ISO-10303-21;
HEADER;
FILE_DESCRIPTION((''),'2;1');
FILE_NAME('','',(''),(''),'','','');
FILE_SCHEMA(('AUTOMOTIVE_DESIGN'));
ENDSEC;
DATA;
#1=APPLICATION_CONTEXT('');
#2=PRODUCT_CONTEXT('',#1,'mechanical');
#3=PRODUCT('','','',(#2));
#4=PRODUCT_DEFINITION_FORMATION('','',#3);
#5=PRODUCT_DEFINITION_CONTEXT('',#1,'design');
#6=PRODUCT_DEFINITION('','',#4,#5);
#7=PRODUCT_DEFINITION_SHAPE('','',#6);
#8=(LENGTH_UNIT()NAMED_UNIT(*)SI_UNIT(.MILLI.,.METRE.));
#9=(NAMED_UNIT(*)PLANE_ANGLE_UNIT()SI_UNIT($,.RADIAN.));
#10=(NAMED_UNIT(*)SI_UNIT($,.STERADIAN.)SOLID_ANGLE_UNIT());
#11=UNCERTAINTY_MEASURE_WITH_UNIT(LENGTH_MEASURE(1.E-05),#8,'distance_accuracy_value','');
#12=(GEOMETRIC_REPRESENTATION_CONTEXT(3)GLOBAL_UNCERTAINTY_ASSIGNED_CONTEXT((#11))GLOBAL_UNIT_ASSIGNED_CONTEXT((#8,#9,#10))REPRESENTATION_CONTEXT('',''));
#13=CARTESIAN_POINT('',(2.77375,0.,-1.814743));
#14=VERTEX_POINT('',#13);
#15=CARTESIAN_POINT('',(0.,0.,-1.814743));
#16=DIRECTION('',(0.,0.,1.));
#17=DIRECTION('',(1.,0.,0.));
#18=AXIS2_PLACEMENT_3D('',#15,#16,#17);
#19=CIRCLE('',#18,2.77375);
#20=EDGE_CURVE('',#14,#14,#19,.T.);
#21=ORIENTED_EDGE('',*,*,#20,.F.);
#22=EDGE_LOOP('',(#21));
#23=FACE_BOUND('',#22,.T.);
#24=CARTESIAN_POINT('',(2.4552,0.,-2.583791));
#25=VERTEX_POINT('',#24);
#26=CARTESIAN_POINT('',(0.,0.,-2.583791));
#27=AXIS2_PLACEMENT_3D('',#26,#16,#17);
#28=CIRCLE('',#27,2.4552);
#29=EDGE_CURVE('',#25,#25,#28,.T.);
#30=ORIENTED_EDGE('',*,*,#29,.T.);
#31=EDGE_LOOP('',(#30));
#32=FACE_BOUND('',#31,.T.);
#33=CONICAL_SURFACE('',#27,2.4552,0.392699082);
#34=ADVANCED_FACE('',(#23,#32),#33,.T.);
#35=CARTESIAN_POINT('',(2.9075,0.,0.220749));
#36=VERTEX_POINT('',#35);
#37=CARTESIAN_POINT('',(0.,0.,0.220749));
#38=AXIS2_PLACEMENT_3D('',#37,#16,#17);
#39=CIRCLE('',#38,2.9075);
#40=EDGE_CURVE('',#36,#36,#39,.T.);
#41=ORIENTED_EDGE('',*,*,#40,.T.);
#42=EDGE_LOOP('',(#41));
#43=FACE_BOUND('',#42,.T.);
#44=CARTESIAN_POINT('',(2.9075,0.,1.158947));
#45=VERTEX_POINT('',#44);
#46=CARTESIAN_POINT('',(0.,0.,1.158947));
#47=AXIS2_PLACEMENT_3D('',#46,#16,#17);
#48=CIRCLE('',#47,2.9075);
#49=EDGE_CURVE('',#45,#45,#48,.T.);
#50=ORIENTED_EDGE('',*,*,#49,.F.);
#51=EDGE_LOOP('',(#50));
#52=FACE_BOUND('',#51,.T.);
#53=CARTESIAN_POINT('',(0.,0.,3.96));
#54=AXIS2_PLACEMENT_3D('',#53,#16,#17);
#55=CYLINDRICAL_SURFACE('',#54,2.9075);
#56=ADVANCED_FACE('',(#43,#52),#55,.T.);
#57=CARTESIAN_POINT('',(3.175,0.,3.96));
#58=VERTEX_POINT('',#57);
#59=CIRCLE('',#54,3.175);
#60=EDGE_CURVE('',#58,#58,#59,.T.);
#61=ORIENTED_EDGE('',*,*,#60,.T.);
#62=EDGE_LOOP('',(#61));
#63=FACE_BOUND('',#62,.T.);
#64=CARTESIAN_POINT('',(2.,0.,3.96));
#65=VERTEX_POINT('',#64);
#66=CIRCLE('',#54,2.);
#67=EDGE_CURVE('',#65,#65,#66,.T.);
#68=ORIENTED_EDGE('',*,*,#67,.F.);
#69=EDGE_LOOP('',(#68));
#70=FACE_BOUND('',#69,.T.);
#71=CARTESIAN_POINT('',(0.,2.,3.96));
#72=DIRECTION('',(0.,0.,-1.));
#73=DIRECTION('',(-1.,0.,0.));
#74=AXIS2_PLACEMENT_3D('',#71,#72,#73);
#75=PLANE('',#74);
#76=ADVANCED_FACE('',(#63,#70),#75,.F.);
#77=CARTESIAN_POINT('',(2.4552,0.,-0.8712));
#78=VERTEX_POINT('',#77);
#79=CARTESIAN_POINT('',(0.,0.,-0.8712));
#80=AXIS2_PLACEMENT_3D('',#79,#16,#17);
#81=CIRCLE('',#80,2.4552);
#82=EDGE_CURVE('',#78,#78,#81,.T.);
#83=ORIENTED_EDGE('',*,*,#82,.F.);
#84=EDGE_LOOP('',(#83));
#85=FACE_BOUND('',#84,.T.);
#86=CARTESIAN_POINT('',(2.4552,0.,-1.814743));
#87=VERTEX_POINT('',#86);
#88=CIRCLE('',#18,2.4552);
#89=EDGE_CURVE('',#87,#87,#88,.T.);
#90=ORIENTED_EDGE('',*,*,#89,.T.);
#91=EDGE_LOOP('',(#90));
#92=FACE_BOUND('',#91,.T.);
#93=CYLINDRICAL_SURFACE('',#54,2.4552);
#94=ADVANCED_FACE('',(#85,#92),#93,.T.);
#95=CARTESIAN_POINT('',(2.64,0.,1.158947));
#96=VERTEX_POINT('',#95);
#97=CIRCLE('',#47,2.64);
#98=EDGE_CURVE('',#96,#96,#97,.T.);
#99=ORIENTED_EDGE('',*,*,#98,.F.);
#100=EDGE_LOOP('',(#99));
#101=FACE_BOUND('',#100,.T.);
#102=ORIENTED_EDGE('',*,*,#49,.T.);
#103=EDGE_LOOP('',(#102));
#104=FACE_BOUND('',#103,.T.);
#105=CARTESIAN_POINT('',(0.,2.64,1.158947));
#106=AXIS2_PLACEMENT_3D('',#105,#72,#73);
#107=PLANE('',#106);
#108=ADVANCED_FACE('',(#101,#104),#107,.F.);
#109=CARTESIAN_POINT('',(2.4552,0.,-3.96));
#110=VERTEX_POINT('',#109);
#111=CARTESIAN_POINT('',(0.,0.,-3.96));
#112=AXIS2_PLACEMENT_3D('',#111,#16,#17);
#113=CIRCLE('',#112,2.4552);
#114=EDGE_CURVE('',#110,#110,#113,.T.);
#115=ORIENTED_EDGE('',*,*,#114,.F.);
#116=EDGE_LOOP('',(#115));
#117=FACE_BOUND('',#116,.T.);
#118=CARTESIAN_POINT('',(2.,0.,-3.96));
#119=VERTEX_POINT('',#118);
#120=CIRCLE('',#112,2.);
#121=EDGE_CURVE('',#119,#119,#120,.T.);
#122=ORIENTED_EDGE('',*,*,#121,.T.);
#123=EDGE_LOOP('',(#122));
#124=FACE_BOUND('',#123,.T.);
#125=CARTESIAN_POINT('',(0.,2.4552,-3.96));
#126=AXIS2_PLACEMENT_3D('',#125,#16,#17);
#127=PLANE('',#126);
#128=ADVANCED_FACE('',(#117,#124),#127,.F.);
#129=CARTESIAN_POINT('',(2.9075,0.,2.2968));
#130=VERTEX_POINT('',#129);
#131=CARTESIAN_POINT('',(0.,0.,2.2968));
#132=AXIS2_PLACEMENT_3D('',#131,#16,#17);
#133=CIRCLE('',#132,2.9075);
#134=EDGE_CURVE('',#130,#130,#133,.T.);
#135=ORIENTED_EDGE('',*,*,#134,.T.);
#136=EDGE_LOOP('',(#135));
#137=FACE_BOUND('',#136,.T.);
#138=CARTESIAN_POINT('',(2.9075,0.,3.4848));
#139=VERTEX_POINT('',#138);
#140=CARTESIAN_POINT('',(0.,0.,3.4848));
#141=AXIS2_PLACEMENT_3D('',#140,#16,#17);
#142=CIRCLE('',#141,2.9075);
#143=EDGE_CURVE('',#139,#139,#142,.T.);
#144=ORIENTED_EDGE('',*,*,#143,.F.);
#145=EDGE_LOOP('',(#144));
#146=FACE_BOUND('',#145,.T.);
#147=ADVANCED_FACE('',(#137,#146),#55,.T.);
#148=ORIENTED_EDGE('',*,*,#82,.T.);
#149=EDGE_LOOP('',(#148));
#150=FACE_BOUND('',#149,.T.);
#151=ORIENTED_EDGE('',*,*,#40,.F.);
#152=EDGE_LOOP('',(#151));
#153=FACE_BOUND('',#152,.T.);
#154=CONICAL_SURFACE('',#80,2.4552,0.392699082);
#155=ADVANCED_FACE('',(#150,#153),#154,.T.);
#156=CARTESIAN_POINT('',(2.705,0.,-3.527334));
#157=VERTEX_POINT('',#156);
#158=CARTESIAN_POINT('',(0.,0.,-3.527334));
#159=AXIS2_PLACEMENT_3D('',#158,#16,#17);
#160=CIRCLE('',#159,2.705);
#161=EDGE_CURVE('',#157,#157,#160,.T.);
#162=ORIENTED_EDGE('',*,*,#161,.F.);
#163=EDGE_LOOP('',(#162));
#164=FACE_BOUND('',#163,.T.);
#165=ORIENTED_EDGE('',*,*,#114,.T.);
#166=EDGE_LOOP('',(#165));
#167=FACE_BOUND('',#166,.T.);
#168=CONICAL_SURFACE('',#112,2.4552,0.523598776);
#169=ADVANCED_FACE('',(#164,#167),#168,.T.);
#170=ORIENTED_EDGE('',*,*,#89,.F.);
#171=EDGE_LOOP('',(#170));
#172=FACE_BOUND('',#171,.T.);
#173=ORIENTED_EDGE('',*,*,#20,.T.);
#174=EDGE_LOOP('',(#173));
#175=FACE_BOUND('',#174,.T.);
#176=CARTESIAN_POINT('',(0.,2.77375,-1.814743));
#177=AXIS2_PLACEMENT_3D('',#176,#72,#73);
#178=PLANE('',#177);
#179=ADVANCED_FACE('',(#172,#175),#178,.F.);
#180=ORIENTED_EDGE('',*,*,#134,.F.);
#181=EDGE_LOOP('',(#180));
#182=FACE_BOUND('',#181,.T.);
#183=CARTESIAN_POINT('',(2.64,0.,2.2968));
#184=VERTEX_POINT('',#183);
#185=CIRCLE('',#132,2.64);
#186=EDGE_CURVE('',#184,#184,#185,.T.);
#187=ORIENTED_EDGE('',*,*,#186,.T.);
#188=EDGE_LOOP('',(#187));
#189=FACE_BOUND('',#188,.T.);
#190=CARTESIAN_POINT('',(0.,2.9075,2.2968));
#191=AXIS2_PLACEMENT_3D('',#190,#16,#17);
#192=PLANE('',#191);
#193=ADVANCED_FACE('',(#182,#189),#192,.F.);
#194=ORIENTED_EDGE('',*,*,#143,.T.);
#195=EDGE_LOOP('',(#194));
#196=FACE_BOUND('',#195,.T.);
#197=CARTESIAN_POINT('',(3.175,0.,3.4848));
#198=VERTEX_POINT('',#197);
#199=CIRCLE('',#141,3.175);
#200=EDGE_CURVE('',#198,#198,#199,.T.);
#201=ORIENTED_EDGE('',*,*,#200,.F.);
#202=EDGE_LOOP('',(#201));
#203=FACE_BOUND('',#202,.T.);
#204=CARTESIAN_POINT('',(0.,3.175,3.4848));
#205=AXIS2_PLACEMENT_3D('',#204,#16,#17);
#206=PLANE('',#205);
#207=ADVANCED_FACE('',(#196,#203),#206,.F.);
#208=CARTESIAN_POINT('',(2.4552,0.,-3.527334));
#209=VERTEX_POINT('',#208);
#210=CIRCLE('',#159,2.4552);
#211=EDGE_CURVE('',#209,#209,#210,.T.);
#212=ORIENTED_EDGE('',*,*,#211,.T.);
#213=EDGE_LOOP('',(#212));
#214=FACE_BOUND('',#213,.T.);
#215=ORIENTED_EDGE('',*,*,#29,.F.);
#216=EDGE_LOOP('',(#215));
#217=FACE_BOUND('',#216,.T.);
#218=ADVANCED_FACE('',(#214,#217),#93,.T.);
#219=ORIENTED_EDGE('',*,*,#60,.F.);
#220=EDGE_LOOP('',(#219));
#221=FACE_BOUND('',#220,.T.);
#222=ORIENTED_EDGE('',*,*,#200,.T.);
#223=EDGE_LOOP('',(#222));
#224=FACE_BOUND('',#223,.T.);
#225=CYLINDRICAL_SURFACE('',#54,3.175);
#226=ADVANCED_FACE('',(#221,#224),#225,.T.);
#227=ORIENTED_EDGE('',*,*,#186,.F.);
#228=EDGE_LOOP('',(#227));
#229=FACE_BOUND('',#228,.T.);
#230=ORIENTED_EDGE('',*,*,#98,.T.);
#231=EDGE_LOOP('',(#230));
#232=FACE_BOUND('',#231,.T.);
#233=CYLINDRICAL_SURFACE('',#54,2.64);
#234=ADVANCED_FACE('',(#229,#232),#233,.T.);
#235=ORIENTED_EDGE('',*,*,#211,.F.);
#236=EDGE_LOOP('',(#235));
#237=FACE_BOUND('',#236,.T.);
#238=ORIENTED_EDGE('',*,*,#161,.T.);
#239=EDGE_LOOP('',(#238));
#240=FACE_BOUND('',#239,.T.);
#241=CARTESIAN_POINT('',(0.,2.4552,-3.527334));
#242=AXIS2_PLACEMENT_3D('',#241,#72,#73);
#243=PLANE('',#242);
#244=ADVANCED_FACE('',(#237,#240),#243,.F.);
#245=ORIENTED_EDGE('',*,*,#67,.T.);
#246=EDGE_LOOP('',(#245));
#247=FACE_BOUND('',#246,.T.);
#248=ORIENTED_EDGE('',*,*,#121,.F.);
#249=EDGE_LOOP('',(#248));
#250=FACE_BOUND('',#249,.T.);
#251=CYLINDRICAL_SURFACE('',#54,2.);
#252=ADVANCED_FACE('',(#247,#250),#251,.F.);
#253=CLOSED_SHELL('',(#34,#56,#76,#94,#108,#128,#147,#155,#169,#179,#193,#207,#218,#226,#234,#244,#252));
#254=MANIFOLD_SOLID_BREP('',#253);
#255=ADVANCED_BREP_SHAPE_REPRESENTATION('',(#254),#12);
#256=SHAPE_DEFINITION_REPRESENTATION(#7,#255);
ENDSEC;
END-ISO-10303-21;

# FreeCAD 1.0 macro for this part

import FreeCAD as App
import Part
import Sketcher
Q = App.Units.Quantity


def add_polygon(sketch, points):
    """Adds a closed chain of lines whose ends are joined by coincident constraints."""
    first, n = sketch.GeometryCount, len(points)
    for a, b in zip(points, points[1:] + points[:1]):
        sketch.addGeometry(Part.LineSegment(App.Vector(*a, 0), App.Vector(*b, 0)), False)
    for i in range(n):
        sketch.addConstraint(Sketcher.Constraint("Coincident", first + i, 2, first + (i + 1) % n, 1))

doc = App.newDocument("Part")
body = doc.addObject("PartDesign::Body", "Body")

# Sketch on YZ plane
sketch1 = doc.addObject("Sketcher::SketchObject", "Sketch")
body.addObject(sketch1)
sketch1.AttachmentSupport = (doc.YZ_Plane, [""])
sketch1.MapMode = "FlatFace"
add_polygon(sketch1, [(3.17, 3.96), (2, 3.96), (2, -3.96), (2.46, -3.96), (2.71, -3.53), (2.46, -3.53), (2.46, -2.58), (2.77, -1.81), (2.46, -1.81), (2.46, -0.87), (2.91, 0.22), (2.91, 1.16), (2.64, 1.16), (2.64, 2.3), (2.91, 2.3), (2.91, 3.48), (3.17, 3.48)])  # lines 0-16
sketch1.addConstraint([
    Sketcher.Constraint("Horizontal", 0),
    Sketcher.Constraint("Vertical", 1),
    Sketcher.Constraint("Horizontal", 2),
    Sketcher.Constraint("Horizontal", 4),
    Sketcher.Constraint("Vertical", 5),
    Sketcher.Constraint("Horizontal", 7),
    Sketcher.Constraint("Vertical", 8),
    Sketcher.Constraint("Vertical", 10),
    Sketcher.Constraint("Horizontal", 11),
    Sketcher.Constraint("Vertical", 12),
    Sketcher.Constraint("Horizontal", 13),
    Sketcher.Constraint("Vertical", 14),
    Sketcher.Constraint("Horizontal", 15),
    Sketcher.Constraint("Vertical", 16),
    Sketcher.Constraint("Parallel", 6, 9),
    Sketcher.Constraint("Vertical", 2, 2, 4, 2),
    Sketcher.Constraint("Vertical", 5, 2, 7, 2),
    Sketcher.Constraint("Vertical", 10, 2, 13, 2),
    Sketcher.Constraint("Equal", 13, 15),
    Sketcher.Constraint("Equal", 5, 8),
    Sketcher.Constraint("Angle", 3, Q("60 deg")),
    Sketcher.Constraint("DistanceX", -1, 1, 0, 2, Q("2 mm")),
    Sketcher.Constraint("Angle", 6, Q("67.5 deg")),
    Sketcher.Constraint("DistanceY", 1, 2, 1, 1, Q("7.92 mm")),
    Sketcher.Constraint("DistanceX", 0, 2, 0, 1, Q("1.175 mm")),
    Sketcher.Constraint("DistanceY", 14, 1, 14, 2, Q("1.188 mm")),
    Sketcher.Constraint("DistanceY", -1, 1, 0, 2, Q("3.96 mm")),
    Sketcher.Constraint("DistanceX", -1, 1, 11, 2, Q("2.64 mm")),
    Sketcher.Constraint("DistanceX", 2, 1, 2, 2, Q("0.4552 mm")),
    Sketcher.Constraint("DistanceX", 4, 2, 4, 1, Q("0.2498 mm")),
    Sketcher.Constraint("DistanceY", 16, 1, 16, 2, Q("0.4752 mm")),
    Sketcher.Constraint("DistanceY", 8, 2, 12, 2, Q("3.168 mm")),
    Sketcher.Constraint("DistanceX", 7, 2, 7, 1, Q("0.31855 mm")),
    Sketcher.Constraint("DistanceY", 10, 1, 10, 2, Q("0.938198 mm")),
])
revolution = doc.addObject("PartDesign::Revolution", "Revolution")
body.addObject(revolution)
revolution.Profile = sketch1
revolution.ReferenceAxis = (sketch1, ["V_Axis"])
revolution.Angle = 360

doc.recompute()
